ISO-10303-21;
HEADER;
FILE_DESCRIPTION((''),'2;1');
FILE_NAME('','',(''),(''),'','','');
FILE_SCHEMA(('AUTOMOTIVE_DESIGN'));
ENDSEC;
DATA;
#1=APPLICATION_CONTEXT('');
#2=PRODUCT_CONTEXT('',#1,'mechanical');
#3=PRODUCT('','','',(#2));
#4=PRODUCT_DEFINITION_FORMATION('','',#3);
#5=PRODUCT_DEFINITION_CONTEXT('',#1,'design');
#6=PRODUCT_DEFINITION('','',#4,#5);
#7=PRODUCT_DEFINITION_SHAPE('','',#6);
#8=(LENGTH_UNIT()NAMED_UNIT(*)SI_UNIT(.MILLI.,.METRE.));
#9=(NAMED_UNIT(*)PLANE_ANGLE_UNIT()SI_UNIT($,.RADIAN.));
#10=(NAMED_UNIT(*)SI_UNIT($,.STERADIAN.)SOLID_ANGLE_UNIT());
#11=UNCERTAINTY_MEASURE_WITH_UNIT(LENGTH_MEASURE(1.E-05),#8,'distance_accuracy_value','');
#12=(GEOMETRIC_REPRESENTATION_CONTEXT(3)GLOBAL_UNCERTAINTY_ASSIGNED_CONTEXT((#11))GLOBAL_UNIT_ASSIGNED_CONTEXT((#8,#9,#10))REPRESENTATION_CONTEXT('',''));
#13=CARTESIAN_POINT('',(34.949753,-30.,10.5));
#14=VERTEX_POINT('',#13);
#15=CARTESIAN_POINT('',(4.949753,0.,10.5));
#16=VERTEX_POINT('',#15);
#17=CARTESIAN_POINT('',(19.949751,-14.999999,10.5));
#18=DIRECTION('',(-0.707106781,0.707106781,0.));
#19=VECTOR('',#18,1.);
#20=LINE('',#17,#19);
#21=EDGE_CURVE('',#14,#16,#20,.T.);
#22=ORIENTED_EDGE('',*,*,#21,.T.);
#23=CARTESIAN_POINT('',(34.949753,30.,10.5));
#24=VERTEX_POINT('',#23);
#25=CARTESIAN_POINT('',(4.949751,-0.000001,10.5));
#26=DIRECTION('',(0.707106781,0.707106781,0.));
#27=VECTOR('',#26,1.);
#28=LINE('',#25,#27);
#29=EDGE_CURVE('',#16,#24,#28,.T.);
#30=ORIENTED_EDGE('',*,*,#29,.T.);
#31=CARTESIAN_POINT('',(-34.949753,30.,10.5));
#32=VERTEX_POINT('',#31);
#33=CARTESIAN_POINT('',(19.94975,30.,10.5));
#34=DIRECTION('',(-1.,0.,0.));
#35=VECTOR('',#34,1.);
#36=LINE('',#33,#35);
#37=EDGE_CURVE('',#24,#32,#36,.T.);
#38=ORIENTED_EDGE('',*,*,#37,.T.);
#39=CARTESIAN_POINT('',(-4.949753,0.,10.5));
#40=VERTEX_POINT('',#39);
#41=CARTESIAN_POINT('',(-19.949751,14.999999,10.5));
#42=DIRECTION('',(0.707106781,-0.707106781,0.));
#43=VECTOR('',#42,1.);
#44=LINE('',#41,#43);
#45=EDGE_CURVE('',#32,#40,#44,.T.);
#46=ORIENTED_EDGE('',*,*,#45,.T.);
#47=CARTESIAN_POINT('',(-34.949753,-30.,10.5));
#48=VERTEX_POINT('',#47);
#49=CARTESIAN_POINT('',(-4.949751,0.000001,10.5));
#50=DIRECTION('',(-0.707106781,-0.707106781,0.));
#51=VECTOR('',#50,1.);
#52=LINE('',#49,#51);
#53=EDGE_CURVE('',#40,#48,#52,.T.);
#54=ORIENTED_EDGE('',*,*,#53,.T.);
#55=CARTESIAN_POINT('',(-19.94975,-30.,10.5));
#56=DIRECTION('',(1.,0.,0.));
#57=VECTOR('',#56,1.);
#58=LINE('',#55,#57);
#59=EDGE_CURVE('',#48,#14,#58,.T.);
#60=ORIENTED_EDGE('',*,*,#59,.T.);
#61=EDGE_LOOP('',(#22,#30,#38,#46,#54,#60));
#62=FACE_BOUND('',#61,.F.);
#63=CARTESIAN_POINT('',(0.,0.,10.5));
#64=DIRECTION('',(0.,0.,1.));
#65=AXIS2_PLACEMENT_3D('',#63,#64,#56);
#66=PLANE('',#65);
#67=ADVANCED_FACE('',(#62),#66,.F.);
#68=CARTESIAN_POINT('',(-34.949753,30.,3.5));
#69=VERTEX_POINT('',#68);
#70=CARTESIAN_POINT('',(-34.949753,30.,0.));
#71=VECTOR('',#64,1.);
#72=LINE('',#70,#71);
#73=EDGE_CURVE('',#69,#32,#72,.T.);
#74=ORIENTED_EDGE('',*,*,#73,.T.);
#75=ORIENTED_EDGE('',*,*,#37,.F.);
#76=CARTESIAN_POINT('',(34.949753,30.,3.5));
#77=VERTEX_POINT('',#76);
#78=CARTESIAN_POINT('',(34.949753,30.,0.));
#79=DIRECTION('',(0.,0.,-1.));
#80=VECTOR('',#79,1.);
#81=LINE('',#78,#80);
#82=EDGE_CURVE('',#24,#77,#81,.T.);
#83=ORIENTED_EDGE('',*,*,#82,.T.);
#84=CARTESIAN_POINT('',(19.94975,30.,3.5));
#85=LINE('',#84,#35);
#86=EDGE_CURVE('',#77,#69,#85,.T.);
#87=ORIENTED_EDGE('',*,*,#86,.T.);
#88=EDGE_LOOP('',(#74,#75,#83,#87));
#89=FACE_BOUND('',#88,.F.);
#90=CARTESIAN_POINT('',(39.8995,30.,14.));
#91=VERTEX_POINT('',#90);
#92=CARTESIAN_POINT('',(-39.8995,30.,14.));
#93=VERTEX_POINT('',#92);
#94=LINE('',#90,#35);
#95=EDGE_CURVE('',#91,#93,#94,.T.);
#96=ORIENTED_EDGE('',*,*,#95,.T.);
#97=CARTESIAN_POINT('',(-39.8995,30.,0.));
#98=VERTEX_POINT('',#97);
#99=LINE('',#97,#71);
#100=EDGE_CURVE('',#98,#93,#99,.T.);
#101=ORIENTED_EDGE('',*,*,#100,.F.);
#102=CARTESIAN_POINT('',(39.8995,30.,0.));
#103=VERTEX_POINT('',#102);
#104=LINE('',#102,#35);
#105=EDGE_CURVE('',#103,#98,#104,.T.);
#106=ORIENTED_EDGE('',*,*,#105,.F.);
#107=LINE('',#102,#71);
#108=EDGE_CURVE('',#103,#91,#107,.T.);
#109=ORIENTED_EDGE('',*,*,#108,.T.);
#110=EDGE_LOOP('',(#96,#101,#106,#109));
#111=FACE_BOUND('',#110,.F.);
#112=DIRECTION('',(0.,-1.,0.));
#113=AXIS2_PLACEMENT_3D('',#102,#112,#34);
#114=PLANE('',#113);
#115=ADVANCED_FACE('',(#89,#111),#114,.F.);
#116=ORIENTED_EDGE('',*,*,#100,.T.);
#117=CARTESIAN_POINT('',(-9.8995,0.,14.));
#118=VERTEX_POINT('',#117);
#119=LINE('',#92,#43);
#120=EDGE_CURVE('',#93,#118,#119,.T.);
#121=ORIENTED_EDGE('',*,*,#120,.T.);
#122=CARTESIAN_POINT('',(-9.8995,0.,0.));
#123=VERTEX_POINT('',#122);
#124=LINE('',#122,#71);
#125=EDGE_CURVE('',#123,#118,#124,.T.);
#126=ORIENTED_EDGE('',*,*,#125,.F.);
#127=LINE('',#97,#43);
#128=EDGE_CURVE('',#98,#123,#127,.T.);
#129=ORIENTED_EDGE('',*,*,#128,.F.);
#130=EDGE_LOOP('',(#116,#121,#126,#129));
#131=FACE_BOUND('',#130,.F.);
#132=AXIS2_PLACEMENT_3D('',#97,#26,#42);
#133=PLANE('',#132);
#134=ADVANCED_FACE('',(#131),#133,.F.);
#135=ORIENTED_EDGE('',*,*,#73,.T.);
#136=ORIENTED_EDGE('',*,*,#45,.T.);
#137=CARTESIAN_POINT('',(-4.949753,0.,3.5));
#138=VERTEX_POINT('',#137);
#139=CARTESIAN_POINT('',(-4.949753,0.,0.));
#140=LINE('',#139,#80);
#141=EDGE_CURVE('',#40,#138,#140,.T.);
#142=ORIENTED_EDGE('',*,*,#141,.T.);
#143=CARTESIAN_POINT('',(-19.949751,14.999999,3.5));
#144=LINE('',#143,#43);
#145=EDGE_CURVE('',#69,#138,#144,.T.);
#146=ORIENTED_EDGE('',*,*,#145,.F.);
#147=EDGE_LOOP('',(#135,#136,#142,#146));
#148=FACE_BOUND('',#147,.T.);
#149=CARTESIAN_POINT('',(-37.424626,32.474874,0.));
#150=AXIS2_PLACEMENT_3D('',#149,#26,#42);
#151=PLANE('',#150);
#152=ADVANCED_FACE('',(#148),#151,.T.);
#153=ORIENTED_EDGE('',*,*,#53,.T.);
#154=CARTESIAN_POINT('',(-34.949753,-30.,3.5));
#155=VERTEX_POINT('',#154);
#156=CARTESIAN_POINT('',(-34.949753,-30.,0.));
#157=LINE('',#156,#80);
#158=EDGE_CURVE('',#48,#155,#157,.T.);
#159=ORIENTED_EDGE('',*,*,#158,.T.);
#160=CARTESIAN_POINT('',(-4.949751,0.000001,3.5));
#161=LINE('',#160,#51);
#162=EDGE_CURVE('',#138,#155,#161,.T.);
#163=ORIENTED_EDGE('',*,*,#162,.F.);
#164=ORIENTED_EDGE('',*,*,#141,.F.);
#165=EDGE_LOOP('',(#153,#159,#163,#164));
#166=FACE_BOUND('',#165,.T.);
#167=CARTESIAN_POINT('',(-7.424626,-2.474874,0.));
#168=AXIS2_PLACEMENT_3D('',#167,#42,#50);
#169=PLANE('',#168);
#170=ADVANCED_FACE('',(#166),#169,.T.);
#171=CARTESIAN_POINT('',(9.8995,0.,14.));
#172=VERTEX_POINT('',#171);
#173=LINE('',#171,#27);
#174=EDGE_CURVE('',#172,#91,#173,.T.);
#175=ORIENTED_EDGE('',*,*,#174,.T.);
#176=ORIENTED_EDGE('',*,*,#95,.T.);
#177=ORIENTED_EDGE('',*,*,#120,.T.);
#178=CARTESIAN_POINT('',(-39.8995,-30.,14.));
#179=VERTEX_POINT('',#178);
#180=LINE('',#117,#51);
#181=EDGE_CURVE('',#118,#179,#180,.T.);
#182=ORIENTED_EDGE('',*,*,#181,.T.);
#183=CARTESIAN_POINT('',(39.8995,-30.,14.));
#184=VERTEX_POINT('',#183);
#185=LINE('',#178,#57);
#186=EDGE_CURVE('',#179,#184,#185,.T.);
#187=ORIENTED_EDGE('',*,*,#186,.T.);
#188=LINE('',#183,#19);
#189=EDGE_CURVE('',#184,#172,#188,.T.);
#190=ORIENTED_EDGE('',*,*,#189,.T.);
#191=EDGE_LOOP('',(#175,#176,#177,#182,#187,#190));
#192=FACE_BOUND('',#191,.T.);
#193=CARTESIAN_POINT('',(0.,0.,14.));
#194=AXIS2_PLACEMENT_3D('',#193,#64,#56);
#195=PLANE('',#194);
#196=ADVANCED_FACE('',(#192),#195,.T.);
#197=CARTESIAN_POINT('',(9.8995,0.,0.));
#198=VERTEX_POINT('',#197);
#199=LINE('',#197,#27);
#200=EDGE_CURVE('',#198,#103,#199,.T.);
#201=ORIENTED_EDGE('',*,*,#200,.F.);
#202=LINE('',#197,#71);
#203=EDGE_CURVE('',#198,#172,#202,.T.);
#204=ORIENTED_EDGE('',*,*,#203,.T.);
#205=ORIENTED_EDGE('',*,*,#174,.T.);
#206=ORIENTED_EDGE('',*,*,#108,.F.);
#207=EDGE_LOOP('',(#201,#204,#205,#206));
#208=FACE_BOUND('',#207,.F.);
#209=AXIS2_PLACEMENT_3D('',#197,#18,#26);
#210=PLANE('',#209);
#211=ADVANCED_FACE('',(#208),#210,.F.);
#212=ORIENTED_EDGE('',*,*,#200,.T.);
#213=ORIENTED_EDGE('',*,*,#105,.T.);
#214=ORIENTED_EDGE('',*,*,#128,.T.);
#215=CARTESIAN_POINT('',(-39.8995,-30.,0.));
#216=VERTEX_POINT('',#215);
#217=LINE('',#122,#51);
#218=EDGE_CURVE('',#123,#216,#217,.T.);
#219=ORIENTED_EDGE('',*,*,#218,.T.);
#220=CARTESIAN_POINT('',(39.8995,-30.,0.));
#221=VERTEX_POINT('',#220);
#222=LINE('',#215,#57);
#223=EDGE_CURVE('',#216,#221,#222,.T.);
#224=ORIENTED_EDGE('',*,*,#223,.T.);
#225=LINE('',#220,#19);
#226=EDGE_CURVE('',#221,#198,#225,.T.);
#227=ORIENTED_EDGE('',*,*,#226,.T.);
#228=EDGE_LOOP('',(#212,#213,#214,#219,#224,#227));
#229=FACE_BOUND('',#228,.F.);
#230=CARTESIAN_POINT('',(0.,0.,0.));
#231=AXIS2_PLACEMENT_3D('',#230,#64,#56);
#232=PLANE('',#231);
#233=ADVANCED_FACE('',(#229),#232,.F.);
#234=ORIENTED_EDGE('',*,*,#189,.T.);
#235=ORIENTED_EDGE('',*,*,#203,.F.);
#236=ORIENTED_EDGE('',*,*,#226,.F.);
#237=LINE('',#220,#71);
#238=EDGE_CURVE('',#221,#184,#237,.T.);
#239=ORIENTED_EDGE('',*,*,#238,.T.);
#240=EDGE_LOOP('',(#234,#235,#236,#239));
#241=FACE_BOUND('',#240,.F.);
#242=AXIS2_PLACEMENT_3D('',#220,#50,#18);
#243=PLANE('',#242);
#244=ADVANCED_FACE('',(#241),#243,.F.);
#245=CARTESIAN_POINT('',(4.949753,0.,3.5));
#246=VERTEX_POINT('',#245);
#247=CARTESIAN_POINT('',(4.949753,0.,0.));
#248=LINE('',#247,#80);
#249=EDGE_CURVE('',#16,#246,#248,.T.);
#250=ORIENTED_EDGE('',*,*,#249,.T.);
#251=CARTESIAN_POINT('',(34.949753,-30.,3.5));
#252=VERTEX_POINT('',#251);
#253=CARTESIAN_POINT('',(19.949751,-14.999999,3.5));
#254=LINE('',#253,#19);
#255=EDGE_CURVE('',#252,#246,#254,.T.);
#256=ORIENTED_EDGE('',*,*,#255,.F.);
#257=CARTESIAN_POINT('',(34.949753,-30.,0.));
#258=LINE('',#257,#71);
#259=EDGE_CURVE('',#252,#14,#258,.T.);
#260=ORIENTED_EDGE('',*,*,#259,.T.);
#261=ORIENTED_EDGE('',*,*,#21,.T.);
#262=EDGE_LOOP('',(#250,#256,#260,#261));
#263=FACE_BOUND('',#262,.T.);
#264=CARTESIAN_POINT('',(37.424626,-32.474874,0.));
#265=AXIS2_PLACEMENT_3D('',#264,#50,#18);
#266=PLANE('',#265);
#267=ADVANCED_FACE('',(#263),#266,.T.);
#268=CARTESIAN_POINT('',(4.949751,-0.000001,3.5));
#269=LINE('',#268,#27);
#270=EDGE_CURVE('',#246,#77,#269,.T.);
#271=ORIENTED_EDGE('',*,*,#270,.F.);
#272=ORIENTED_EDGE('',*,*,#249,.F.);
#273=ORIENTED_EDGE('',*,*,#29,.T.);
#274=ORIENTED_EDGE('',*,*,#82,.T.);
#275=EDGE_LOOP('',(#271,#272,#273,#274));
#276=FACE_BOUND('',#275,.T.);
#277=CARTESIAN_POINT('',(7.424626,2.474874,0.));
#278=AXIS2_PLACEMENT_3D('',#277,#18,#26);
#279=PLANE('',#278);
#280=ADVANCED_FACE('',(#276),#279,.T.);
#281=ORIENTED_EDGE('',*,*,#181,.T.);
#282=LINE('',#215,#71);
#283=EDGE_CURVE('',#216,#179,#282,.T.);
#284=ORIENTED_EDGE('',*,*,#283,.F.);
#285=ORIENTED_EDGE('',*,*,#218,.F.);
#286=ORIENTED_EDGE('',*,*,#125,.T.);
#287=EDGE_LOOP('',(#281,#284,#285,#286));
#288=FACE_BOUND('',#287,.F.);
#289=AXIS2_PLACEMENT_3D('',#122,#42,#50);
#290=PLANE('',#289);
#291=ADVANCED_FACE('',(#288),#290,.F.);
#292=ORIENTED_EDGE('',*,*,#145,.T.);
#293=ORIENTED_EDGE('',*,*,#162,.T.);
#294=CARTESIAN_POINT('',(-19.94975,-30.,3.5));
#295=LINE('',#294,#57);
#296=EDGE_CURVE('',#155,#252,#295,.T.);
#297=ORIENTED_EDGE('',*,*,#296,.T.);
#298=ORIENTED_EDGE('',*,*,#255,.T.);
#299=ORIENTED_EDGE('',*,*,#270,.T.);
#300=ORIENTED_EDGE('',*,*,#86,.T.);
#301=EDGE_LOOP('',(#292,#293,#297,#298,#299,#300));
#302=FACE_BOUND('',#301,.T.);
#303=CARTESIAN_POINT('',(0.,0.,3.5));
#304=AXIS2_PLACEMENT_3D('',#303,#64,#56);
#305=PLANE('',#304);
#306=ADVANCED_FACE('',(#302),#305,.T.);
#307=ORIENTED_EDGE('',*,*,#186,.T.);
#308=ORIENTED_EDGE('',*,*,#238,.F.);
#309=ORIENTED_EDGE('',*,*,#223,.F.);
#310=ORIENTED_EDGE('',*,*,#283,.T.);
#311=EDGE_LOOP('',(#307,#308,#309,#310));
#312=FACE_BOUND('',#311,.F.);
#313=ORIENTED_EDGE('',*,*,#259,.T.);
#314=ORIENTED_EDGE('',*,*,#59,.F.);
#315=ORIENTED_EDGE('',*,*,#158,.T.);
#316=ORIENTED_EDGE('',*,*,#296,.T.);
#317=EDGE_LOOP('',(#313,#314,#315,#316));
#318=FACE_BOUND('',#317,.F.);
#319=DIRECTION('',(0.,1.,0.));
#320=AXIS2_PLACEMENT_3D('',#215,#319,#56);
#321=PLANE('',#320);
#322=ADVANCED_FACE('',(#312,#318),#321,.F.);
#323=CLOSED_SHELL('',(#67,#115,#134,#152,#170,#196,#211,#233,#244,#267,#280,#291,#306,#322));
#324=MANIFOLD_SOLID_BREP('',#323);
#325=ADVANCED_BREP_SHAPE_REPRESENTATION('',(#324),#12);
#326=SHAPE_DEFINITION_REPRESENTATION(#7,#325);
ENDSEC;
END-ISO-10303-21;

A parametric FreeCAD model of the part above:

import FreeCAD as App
import Part
import Sketcher
Q = App.Units.Quantity


def faces_at(feature, points):
    """Names of the faces that lie closest to the given points."""
    faces = feature.Shape.Faces
    near = lambda p: min(range(len(faces)), key=lambda i: faces[i].distToShape(Part.Vertex(*p))[0])
    return sorted({f"Face{near(p) + 1}" for p in points})

doc = App.newDocument("Part")
params = doc.addObject("Spreadsheet::Sheet", "Params")
for row, (alias, value) in enumerate([
    ("pad1_length", "14 mm"),
    ("thickness_wall", "3.5 mm"),
], start=1):
    params.set(f"A{row}", alias)
    params.set(f"B{row}", "=" + value)
    params.setAlias(f"B{row}", alias)

body = doc.addObject("PartDesign::Body", "Body")

sketch1 = body.newObject("Sketcher::SketchObject", "Sketch")
sketch1.AttachmentSupport = (doc.getObject("XY_Plane"), [""])
sketch1.MapMode = "FlatFace"
sketch1.addGeometry([
    Part.LineSegment(App.Vector(40, 30, 0), App.Vector(-40, 30, 0)),
    Part.LineSegment(App.Vector(-40, 30, 0), App.Vector(-10, 0, 0)),
    Part.LineSegment(App.Vector(-10, 0, 0), App.Vector(-40, -30, 0)),
    Part.LineSegment(App.Vector(-40, -30, 0), App.Vector(40, -30, 0)),
    Part.LineSegment(App.Vector(40, -30, 0), App.Vector(10, 0, 0)),
    Part.LineSegment(App.Vector(10, 0, 0), App.Vector(40, 30, 0)),
], False)
sketch1.addConstraint([
    Sketcher.Constraint("Coincident", 0, 2, 1, 1),
    Sketcher.Constraint("Coincident", 1, 2, 2, 1),
    Sketcher.Constraint("Coincident", 2, 2, 3, 1),
    Sketcher.Constraint("Coincident", 3, 2, 4, 1),
    Sketcher.Constraint("Coincident", 4, 2, 5, 1),
    Sketcher.Constraint("Coincident", 5, 2, 0, 1),
    Sketcher.Constraint("Horizontal", 0),
    Sketcher.Constraint("Horizontal", 3),
    Sketcher.Constraint("Symmetric", 0, 2, 3, 2, -1, 1),
    Sketcher.Constraint("Symmetric", 1, 2, 4, 2, -1, 1),
    Sketcher.Constraint("PointOnObject", 1, 2, -1),
    Sketcher.Constraint("Perpendicular", 1, 2),
    Sketcher.Constraint("Perpendicular", 4, 5),
    Sketcher.Constraint("Vertical", 0, 2, 2, 2),
    Sketcher.Constraint("DistanceY", -1, 1, 0, 2, Q("30 mm")),
    Sketcher.Constraint("DistanceX", 0, 2, 0, 1, Q("79.799 mm")),
])
pad1 = body.newObject("PartDesign::Pad", "Pad")
pad1.Profile = sketch1
pad1.setExpression("Length", "Params.pad1_length")
doc.recompute()

thickness = body.newObject("PartDesign::Thickness", "Thickness")
thickness.Base = (pad1, faces_at(pad1, [(0, -30, 7), (0, 30, 7)]))
thickness.setExpression("Value", "Params.thickness_wall")
thickness.Reversed = True
thickness.Join = "Intersection"

doc.recompute()
